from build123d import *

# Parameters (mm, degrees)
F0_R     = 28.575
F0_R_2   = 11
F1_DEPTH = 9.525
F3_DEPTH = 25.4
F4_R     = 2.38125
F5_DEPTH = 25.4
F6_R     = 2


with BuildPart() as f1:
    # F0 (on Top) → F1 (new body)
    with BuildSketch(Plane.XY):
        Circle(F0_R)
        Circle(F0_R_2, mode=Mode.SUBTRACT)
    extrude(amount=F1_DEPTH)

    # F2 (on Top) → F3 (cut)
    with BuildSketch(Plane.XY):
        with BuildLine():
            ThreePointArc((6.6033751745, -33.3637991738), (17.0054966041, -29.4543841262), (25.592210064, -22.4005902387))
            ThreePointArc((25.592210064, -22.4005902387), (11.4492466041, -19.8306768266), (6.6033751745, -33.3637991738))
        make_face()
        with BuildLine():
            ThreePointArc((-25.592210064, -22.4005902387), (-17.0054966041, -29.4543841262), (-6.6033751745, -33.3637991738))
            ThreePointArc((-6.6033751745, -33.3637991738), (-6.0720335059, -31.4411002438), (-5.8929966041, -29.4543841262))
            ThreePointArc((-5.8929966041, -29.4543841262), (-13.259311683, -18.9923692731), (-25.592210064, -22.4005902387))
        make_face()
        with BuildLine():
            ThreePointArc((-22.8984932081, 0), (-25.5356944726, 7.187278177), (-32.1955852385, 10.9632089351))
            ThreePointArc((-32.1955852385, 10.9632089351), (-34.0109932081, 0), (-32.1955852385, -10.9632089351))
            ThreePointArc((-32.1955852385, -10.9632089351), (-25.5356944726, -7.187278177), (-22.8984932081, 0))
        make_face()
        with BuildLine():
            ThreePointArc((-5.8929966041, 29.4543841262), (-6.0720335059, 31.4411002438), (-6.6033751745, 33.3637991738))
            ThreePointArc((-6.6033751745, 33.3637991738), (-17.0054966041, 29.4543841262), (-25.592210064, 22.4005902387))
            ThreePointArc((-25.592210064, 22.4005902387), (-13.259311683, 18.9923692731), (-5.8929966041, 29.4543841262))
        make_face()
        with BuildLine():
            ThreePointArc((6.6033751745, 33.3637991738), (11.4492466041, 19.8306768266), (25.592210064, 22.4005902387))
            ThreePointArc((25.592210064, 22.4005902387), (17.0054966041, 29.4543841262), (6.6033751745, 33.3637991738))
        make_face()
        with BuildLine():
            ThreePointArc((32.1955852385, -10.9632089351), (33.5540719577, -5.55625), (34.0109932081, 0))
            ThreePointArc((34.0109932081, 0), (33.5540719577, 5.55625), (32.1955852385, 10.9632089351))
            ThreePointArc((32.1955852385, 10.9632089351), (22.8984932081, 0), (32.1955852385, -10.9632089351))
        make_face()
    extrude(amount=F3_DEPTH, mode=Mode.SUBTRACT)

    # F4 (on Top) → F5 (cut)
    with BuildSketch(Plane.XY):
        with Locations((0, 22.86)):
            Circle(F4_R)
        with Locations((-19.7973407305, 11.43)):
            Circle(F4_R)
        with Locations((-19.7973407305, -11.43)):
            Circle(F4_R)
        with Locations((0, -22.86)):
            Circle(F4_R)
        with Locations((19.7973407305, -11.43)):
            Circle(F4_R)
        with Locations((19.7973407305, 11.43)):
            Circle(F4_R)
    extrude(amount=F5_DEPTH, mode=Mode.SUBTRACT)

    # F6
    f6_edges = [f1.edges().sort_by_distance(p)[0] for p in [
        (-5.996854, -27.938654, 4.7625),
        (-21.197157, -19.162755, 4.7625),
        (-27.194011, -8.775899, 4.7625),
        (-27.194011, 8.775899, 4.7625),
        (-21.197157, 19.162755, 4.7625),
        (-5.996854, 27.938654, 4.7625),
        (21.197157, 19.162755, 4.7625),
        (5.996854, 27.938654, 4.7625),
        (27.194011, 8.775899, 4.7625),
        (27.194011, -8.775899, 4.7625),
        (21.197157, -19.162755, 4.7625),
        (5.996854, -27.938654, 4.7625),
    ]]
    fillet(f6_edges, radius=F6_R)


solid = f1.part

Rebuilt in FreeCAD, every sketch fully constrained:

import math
import FreeCAD as App
import Part
import Sketcher
Q = App.Units.Quantity


def edges_at(feature, points):
    """Names of the edges that pass closest to the given points."""
    edges = feature.Shape.Edges
    near = lambda p: min(range(len(edges)), key=lambda i: edges[i].distToShape(Part.Vertex(*p))[0])
    return sorted({f"Edge{near(p) + 1}" for p in points})

doc = App.newDocument("Part")
body = doc.addObject("PartDesign::Body", "Body")

sketch1 = body.newObject("Sketcher::SketchObject", "Sketch")
sketch1.AttachmentSupport = (doc.getObject("XY_Plane"), [""])
sketch1.MapMode = "FlatFace"
sketch1.addGeometry(Part.Circle(App.Vector(0, 0, 0), App.Vector(0, 0, 1), 28.575), False)
sketch1.addGeometry(Part.Circle(App.Vector(0, 0, 0), App.Vector(0, 0, 1), 11), False)
sketch1.addConstraint(Sketcher.Constraint("Coincident", 0, 3, -1, 1))
sketch1.addConstraint(Sketcher.Constraint("Coincident", 1, 3, -1, 1))
sketch1.addConstraint(Sketcher.Constraint("Diameter", 0, Q("2.25 in")))
sketch1.addConstraint(Sketcher.Constraint("Diameter", 1, 22.0))
pad1 = body.newObject("PartDesign::Pad", "Pad")
pad1.Profile = sketch1
pad1.Length = Q("0.375 in")

sketch2 = body.newObject("Sketcher::SketchObject", "Sketch001")
sketch2.AttachmentSupport = (doc.getObject("XY_Plane"), [""])
sketch2.MapMode = "FlatFace"
sketch2.addGeometry(Part.ArcOfCircle(Part.Circle(App.Vector(0, 0, 0), App.Vector(0, 0, 1), 34.010993), math.radians(-78.804685), math.radians(-41.195315)), False)
sketch2.addGeometry(Part.ArcOfCircle(Part.Circle(App.Vector(17.005497, -29.454384, 0), App.Vector(0, 0, 1), 11.1125), math.radians(39.402342), math.radians(200.597658)), False)
sketch2.addGeometry(Part.ArcOfCircle(Part.Circle(App.Vector(0, 0, 0), App.Vector(0, 0, 1), 34.010993), math.radians(-138.804685), math.radians(-101.195315)), False)
sketch2.addGeometry(Part.ArcOfCircle(Part.Circle(App.Vector(-17.005497, -29.454384, 0), App.Vector(0, 0, 1), 11.1125), math.radians(-20.597658), math.radians(0)), False)
sketch2.addGeometry(Part.ArcOfCircle(Part.Circle(App.Vector(-17.005497, -29.454384, 0), App.Vector(0, 0, 1), 11.1125), math.radians(0), math.radians(140.597658)), False)
sketch2.addGeometry(Part.ArcOfCircle(Part.Circle(App.Vector(-34.010993, 0, 0), App.Vector(0, 0, 1), 11.1125), math.radians(0), math.radians(80.597658)), False)
sketch2.addGeometry(Part.ArcOfCircle(Part.Circle(App.Vector(0, 0, 0), App.Vector(0, 0, 1), 34.010993), math.radians(161.195315), math.radians(198.804685)), False)
sketch2.addGeometry(Part.ArcOfCircle(Part.Circle(App.Vector(-34.010993, 0, 0), App.Vector(0, 0, 1), 11.1125), math.radians(-80.597658), math.radians(0)), False)
sketch2.addGeometry(Part.ArcOfCircle(Part.Circle(App.Vector(-17.005497, 29.454384, 0), App.Vector(0, 0, 1), 11.1125), math.radians(0), math.radians(20.597658)), False)
sketch2.addGeometry(Part.ArcOfCircle(Part.Circle(App.Vector(0, 0, 0), App.Vector(0, 0, 1), 34.010993), math.radians(101.195315), math.radians(138.804685)), False)
sketch2.addGeometry(Part.ArcOfCircle(Part.Circle(App.Vector(-17.005497, 29.454384, 0), App.Vector(0, 0, 1), 11.1125), math.radians(-140.597658), math.radians(0)), False)
sketch2.addGeometry(Part.ArcOfCircle(Part.Circle(App.Vector(17.005497, 29.454384, 0), App.Vector(0, 0, 1), 11.1125), math.radians(159.402342), math.radians(320.597658)), False)
sketch2.addGeometry(Part.ArcOfCircle(Part.Circle(App.Vector(0, 0, 0), App.Vector(0, 0, 1), 34.010993), math.radians(41.195315), math.radians(78.804685)), False)
sketch2.addGeometry(Part.ArcOfCircle(Part.Circle(App.Vector(0, 0, 0), App.Vector(0, 0, 1), 34.010993), math.radians(-18.804685), math.radians(0)), False)
sketch2.addGeometry(Part.ArcOfCircle(Part.Circle(App.Vector(0, 0, 0), App.Vector(0, 0, 1), 34.010993), math.radians(0), math.radians(18.804685)), False)
sketch2.addGeometry(Part.ArcOfCircle(Part.Circle(App.Vector(34.010993, 0, 0), App.Vector(0, 0, 1), 11.1125), math.radians(99.402342), math.radians(260.597658)), False)
sketch2.addConstraint(Sketcher.Constraint("Coincident", 0, 1, 1, 2))
sketch2.addConstraint(Sketcher.Constraint("Coincident", 1, 1, 0, 2))
sketch2.addConstraint(Sketcher.Constraint("Coincident", 2, 2, 3, 1))
sketch2.addConstraint(Sketcher.Constraint("Tangent", 3, 2, 4, 1))
sketch2.addConstraint(Sketcher.Constraint("Coincident", 4, 2, 2, 1))
sketch2.addConstraint(Sketcher.Constraint("Coincident", 5, 2, 6, 1))
sketch2.addConstraint(Sketcher.Constraint("Coincident", 6, 2, 7, 1))
sketch2.addConstraint(Sketcher.Constraint("Tangent", 7, 2, 5, 1))
sketch2.addConstraint(Sketcher.Constraint("Coincident", 8, 2, 9, 1))
sketch2.addConstraint(Sketcher.Constraint("Coincident", 9, 2, 10, 1))
sketch2.addConstraint(Sketcher.Constraint("Tangent", 10, 2, 8, 1))
sketch2.addConstraint(Sketcher.Constraint("Coincident", 11, 1, 12, 2))
sketch2.addConstraint(Sketcher.Constraint("Coincident", 12, 1, 11, 2))
sketch2.addConstraint(Sketcher.Constraint("Tangent", 13, 2, 14, 1))
sketch2.addConstraint(Sketcher.Constraint("Coincident", 14, 2, 15, 1))
sketch2.addConstraint(Sketcher.Constraint("Coincident", 15, 2, 13, 1))
sketch2.addConstraint(Sketcher.Constraint("Coincident", 0, 3, -1, 1))
sketch2.addConstraint(Sketcher.Constraint("Coincident", 2, 3, -1, 1))
sketch2.addConstraint(Sketcher.Constraint("Coincident", 6, 3, -1, 1))
sketch2.addConstraint(Sketcher.Constraint("Coincident", 9, 3, -1, 1))
sketch2.addConstraint(Sketcher.Constraint("Coincident", 12, 3, -1, 1))
sketch2.addConstraint(Sketcher.Constraint("Coincident", 13, 3, -1, 1))
sketch2.addConstraint(Sketcher.Constraint("Coincident", 13, 2, 15, 3))
sketch2.addConstraint(Sketcher.Constraint("Equal", 0, 2))
sketch2.addConstraint(Sketcher.Constraint("Equal", 1, 3))
sketch2.addConstraint(Sketcher.Constraint("Equal", 3, 4))
sketch2.addConstraint(Sketcher.Constraint("Equal", 4, 5))
sketch2.addConstraint(Sketcher.Constraint("Equal", 2, 6))
sketch2.addConstraint(Sketcher.Constraint("Equal", 5, 7))
sketch2.addConstraint(Sketcher.Constraint("Equal", 7, 8))
sketch2.addConstraint(Sketcher.Constraint("Equal", 6, 9))
sketch2.addConstraint(Sketcher.Constraint("Equal", 8, 10))
sketch2.addConstraint(Sketcher.Constraint("Equal", 10, 11))
sketch2.addConstraint(Sketcher.Constraint("Equal", 9, 12))
sketch2.addConstraint(Sketcher.Constraint("Equal", 12, 13))
sketch2.addConstraint(Sketcher.Constraint("Equal", 13, 14))
sketch2.addConstraint(Sketcher.Constraint("Equal", 11, 15))
sketch2.addConstraint(Sketcher.Constraint("Symmetric", 1, 3, 8, 3, -1, 1))
sketch2.addConstraint(Sketcher.Constraint("Symmetric", 3, 3, 11, 3, -1, 1))
sketch2.addConstraint(Sketcher.Constraint("Symmetric", 5, 3, 15, 3, -1, 1))
sketch2.addConstraint(Sketcher.Constraint("Symmetric", 1, 3, 3, 3, -2))
sketch2.addConstraint(Sketcher.Constraint("PointOnObject", 5, 3, -1))
sketch2.addConstraint(Sketcher.Constraint("PointOnObject", 7, 2, -1))
sketch2.addConstraint(Sketcher.Constraint("Horizontal", 4, 3, 3, 2))
sketch2.addConstraint(Sketcher.Constraint("Horizontal", 11, 3, 10, 2))
sketch2.addConstraint(Sketcher.Constraint("Radius", 1, Q("0.4375 in")))
sketch2.addConstraint(Sketcher.Constraint("Radius", 0, 34.010993))
sketch2.addConstraint(Sketcher.Constraint("DistanceY", 0, 1, -1, 1, 33.363799))
sketch2.addConstraint(Sketcher.Constraint("DistanceX", -1, 1, 1, 1, 25.59221))
pocket1 = body.newObject("PartDesign::Pocket", "Pocket")
pocket1.Profile = sketch2
pocket1.Length = Q("1 in")
pocket1.Reversed = True

sketch3 = body.newObject("Sketcher::SketchObject", "Sketch002")
sketch3.AttachmentSupport = (doc.getObject("XY_Plane"), [""])
sketch3.MapMode = "FlatFace"
sketch3.addGeometry(Part.Circle(App.Vector(0, 22.86, 0), App.Vector(0, 0, 1), 2.38125), False)
sketch3.addGeometry(Part.Circle(App.Vector(-19.797341, 11.43, 0), App.Vector(0, 0, 1), 2.38125), False)
sketch3.addGeometry(Part.Circle(App.Vector(-19.797341, -11.43, 0), App.Vector(0, 0, 1), 2.38125), False)
sketch3.addGeometry(Part.Circle(App.Vector(0, -22.86, 0), App.Vector(0, 0, 1), 2.38125), False)
sketch3.addGeometry(Part.Circle(App.Vector(19.797341, -11.43, 0), App.Vector(0, 0, 1), 2.38125), False)
sketch3.addGeometry(Part.Circle(App.Vector(19.797341, 11.43, 0), App.Vector(0, 0, 1), 2.38125), False)
sketch3.addConstraint(Sketcher.Constraint("Equal", 0, 1))
sketch3.addConstraint(Sketcher.Constraint("Equal", 1, 2))
sketch3.addConstraint(Sketcher.Constraint("Equal", 2, 3))
sketch3.addConstraint(Sketcher.Constraint("Equal", 3, 4))
sketch3.addConstraint(Sketcher.Constraint("Equal", 4, 5))
sketch3.addConstraint(Sketcher.Constraint("Symmetric", 0, 3, 3, 3, -1, 1))
sketch3.addConstraint(Sketcher.Constraint("Symmetric", 1, 3, 4, 3, -1, 1))
sketch3.addConstraint(Sketcher.Constraint("Symmetric", 2, 3, 5, 3, -1, 1))
sketch3.addConstraint(Sketcher.Constraint("Symmetric", 2, 3, 4, 3, -2))
sketch3.addConstraint(Sketcher.Constraint("PointOnObject", 0, 3, -2))
sketch3.addConstraint(Sketcher.Constraint("Diameter", 0, Q("0.1875 in")))
sketch3.addConstraint(Sketcher.Constraint("DistanceY", -1, 1, 0, 3, Q("0.9 in")))
sketch3.addConstraint(Sketcher.Constraint("DistanceY", 2, 3, 1, 3, Q("0.9 in")))
sketch3.addConstraint(Sketcher.Constraint("DistanceX", 1, 3, -1, 1, 19.797341))
pocket2 = body.newObject("PartDesign::Pocket", "Pocket001")
pocket2.Profile = sketch3
pocket2.Length = Q("1 in")
pocket2.Reversed = True
doc.recompute()

fillet = body.newObject("PartDesign::Fillet", "Fillet")
fillet.Base = (pocket2, edges_at(pocket2, [
    (-5.997, -27.939, 4.763),
    (-21.197, -19.163, 4.763),
    (-27.194, -8.776, 4.763),
    (-27.194, 8.776, 4.763),
    (-21.197, 19.163, 4.763),
    (-5.997, 27.939, 4.763),
    (21.197, 19.163, 4.763),
    (5.997, 27.939, 4.763),
    (27.194, 8.776, 4.763),
    (27.194, -8.776, 4.763),
    (21.197, -19.163, 4.763),
    (5.997, -27.939, 4.763),
]))
fillet.Radius = 2

doc.recompute()
